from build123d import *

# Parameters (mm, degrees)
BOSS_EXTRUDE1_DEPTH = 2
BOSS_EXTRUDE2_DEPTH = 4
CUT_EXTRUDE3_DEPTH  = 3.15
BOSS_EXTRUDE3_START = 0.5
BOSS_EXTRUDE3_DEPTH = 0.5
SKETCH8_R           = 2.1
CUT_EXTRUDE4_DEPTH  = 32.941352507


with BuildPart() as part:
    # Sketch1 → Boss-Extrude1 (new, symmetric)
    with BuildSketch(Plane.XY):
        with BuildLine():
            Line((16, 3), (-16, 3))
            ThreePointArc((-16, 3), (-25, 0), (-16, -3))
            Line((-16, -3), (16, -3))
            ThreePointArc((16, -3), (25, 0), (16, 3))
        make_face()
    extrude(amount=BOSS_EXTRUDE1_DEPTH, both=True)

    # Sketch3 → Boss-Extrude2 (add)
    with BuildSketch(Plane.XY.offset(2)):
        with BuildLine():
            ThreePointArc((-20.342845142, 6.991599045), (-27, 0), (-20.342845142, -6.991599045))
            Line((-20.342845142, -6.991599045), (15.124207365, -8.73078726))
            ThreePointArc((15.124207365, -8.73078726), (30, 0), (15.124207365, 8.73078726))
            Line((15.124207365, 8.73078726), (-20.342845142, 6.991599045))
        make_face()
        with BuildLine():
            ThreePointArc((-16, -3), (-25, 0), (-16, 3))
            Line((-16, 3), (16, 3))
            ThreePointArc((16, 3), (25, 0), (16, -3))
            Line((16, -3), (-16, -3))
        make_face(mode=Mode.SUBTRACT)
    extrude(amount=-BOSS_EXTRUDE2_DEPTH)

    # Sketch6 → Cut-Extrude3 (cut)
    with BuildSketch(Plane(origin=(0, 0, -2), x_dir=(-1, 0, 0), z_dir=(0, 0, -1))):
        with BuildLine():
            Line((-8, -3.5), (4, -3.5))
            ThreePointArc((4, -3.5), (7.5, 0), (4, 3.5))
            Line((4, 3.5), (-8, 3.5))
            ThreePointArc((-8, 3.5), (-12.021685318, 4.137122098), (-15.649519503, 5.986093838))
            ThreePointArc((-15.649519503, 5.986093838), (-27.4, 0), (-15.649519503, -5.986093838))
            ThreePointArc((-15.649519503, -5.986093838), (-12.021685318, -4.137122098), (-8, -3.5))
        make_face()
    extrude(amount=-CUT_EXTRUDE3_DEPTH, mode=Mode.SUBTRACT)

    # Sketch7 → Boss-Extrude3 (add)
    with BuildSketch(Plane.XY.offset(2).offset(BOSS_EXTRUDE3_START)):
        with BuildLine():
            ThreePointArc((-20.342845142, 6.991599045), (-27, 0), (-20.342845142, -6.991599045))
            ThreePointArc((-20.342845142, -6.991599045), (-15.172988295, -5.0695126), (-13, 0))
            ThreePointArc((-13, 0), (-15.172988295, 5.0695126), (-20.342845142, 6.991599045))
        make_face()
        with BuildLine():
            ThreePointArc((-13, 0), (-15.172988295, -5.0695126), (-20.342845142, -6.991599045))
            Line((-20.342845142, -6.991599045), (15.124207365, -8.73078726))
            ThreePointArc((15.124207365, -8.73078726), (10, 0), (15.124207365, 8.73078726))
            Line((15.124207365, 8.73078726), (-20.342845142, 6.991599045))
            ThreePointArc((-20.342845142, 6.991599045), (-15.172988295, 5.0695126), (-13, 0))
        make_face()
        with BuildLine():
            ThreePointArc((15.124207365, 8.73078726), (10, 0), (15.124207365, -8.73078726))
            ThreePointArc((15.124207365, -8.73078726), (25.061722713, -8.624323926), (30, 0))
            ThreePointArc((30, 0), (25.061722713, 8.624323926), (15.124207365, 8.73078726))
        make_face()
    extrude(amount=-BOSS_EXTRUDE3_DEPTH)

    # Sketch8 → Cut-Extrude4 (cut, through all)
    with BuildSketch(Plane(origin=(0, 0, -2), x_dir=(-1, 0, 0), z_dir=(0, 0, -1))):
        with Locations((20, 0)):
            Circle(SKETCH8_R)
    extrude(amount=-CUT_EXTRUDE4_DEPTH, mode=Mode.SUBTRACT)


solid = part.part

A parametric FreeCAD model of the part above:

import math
import FreeCAD as App
import Part
import Sketcher

V = App.Vector
Q = App.Units.Quantity

doc = App.newDocument("Part")
params = doc.addObject("Spreadsheet::Sheet", "Params")
for row, (alias, value) in enumerate([
    ("sketch1_radius", "5 mm"),
    ("sketch1_width", "32 mm"),
    ("pad1_length", "4 mm"),
    ("sketch2_radius", "7 mm"),
    ("sketch2_radius2", "10 mm"),
    ("sketch2_radius3", "5 mm"),
    ("sketch2_width", "32 mm"),
    ("pad2_length", "4 mm"),
    ("sketch3_radius", "3.5 mm"),
    ("sketch3_radius2", "7.4 mm"),
    ("sketch3_width", "12 mm"),
    ("pocket1_length", "3.15 mm"),
    ("sketch4_radius", "7 mm"),
    ("sketch4_radius2", "10 mm"),
    ("pad3_length", "0.5 mm"),
    ("sketch5_diameter", "4.2 mm"),
], start=1):
    params.set(f"A{row}", alias)
    params.set(f"B{row}", "=" + value)
    params.setAlias(f"B{row}", alias)

body = doc.addObject("PartDesign::Body", "Body")

sketch1 = doc.addObject("Sketcher::SketchObject", "Sketch")
body.addObject(sketch1)
sketch1.AttachmentSupport = (doc.XY_Plane, [""])
sketch1.MapMode = "FlatFace"
sketch1.addGeometry(Part.LineSegment(V(16, 3, 0), V(-16, 3, 0)), False)
sketch1.addGeometry(Part.ArcOfCircle(Part.Circle(V(-20, 0, 0), V(0, 0, 1), 5), math.radians(37), math.radians(323)), False)
sketch1.addGeometry(Part.LineSegment(V(-16, -3, 0), V(16, -3, 0)), False)
sketch1.addGeometry(Part.ArcOfCircle(Part.Circle(V(20, 0, 0), V(0, 0, 1), 5), math.radians(-143), math.radians(143)), False)
sketch1.addConstraint(Sketcher.Constraint("Coincident", 0, 2, 1, 1))
sketch1.addConstraint(Sketcher.Constraint("Coincident", 1, 2, 2, 1))
sketch1.addConstraint(Sketcher.Constraint("Coincident", 2, 2, 3, 1))
sketch1.addConstraint(Sketcher.Constraint("Coincident", 3, 2, 0, 1))
sketch1.addConstraint(Sketcher.Constraint("Horizontal", 0))
sketch1.addConstraint(Sketcher.Constraint("Horizontal", 2))
sketch1.addConstraint(Sketcher.Constraint("Equal", 1, 3))
sketch1.addConstraint(Sketcher.Constraint("Symmetric", 1, 3, 3, 3, -1, 1))
sketch1.addConstraint(Sketcher.Constraint("Symmetric", 0, 2, 1, 2, -1))
sketch1.addConstraint(Sketcher.Constraint("Radius", 1, Q("5 mm")))
sketch1.addConstraint(Sketcher.Constraint("DistanceX", 0, 2, 0, 1, Q("32 mm")))
sketch1.addConstraint(Sketcher.Constraint("DistanceX", 1, 3, -1, 1, Q("20 mm")))
sketch1.setExpression("Constraints[9]", "Params.sketch1_radius")
sketch1.setExpression("Constraints[10]", "Params.sketch1_width")
pad1 = doc.addObject("PartDesign::Pad", "Pad")
body.addObject(pad1)
pad1.Profile = sketch1
pad1.setExpression("Length", "Params.pad1_length")
pad1.Midplane = True

sketch2 = doc.addObject("Sketcher::SketchObject", "Sketch001")
body.addObject(sketch2)
sketch2.AttachmentSupport = (doc.XY_Plane, [""])
sketch2.MapMode = "FlatFace"
sketch2.AttachmentOffset = App.Placement(V(0, 0, 2), App.Rotation())
sketch2.addGeometry(Part.ArcOfCircle(Part.Circle(V(-20, 0, 0), V(0, 0, 1), 7), math.radians(93), math.radians(267)), False)
sketch2.addGeometry(Part.LineSegment(V(-20, -7, 0), V(15, -9, 0)), False)
sketch2.addGeometry(Part.ArcOfCircle(Part.Circle(V(20, 0, 0), V(0, 0, 1), 10), math.radians(-119), math.radians(119)), False)
sketch2.addGeometry(Part.LineSegment(V(15, 9, 0), V(-20, 7, 0)), False)
sketch2.addGeometry(Part.LineSegment(V(16, -3, 0), V(-16, -3, 0)), False)
sketch2.addGeometry(Part.ArcOfCircle(Part.Circle(V(-20, 0, 0), V(0, 0, 1), 5), math.radians(37), math.radians(323)), False)
sketch2.addGeometry(Part.LineSegment(V(-16, 3, 0), V(16, 3, 0)), False)
sketch2.addGeometry(Part.ArcOfCircle(Part.Circle(V(20, 0, 0), V(0, 0, 1), 5), math.radians(-143), math.radians(143)), False)
sketch2.addConstraint(Sketcher.Constraint("Tangent", 0, 2, 1, 1))
sketch2.addConstraint(Sketcher.Constraint("Coincident", 1, 2, 2, 1))
sketch2.addConstraint(Sketcher.Constraint("Coincident", 2, 2, 3, 1))
sketch2.addConstraint(Sketcher.Constraint("Tangent", 3, 2, 0, 1))
sketch2.addConstraint(Sketcher.Constraint("Coincident", 4, 2, 5, 2))
sketch2.addConstraint(Sketcher.Constraint("Coincident", 5, 1, 6, 1))
sketch2.addConstraint(Sketcher.Constraint("Coincident", 6, 2, 7, 2))
sketch2.addConstraint(Sketcher.Constraint("Coincident", 7, 1, 4, 1))
sketch2.addConstraint(Sketcher.Constraint("Horizontal", 4))
sketch2.addConstraint(Sketcher.Constraint("Horizontal", 6))
sketch2.addConstraint(Sketcher.Constraint("Coincident", 5, 3, 0, 3))
sketch2.addConstraint(Sketcher.Constraint("Coincident", 7, 3, 2, 3))
sketch2.addConstraint(Sketcher.Constraint("Equal", 5, 7))
sketch2.addConstraint(Sketcher.Constraint("Symmetric", 0, 3, 2, 3, -1, 1))
sketch2.addConstraint(Sketcher.Constraint("Symmetric", 1, 2, 2, 2, -1))
sketch2.addConstraint(Sketcher.Constraint("Vertical", 4, 2, 5, 1))
sketch2.addConstraint(Sketcher.Constraint("Radius", 0, Q("7 mm")))
sketch2.addConstraint(Sketcher.Constraint("Radius", 2, Q("10 mm")))
sketch2.addConstraint(Sketcher.Constraint("Radius", 5, Q("5 mm")))
sketch2.addConstraint(Sketcher.Constraint("DistanceX", 4, 2, 4, 1, Q("32 mm")))
sketch2.addConstraint(Sketcher.Constraint("DistanceX", 0, 3, -1, 1, Q("20 mm")))
sketch2.addConstraint(Sketcher.Constraint("DistanceY", 0, 2, -1, 1, Q("6.991599 mm")))
sketch2.setExpression("Constraints[16]", "Params.sketch2_radius")
sketch2.setExpression("Constraints[17]", "Params.sketch2_radius2")
sketch2.setExpression("Constraints[18]", "Params.sketch2_radius3")
sketch2.setExpression("Constraints[19]", "Params.sketch2_width")
pad2 = doc.addObject("PartDesign::Pad", "Pad001")
body.addObject(pad2)
pad2.Profile = sketch2
pad2.setExpression("Length", "Params.pad2_length")
pad2.Reversed = True

sketch3 = doc.addObject("Sketcher::SketchObject", "Sketch002")
body.addObject(sketch3)
sketch3.AttachmentSupport = (doc.XY_Plane, [""])
sketch3.MapMode = "FlatFace"
sketch3.AttachmentOffset = App.Placement(V(0, 0, -2), App.Rotation())
sketch3.addGeometry(Part.LineSegment(V(8, -3.5, 0), V(-4, -3.5, 0)), False)
sketch3.addGeometry(Part.ArcOfCircle(Part.Circle(V(-4, 0, 0), V(0, 0, 1), 3.5), math.radians(90), math.radians(270)), False)
sketch3.addGeometry(Part.LineSegment(V(-4, 3.5, 0), V(8, 3.5, 0)), False)
sketch3.addGeometry(Part.ArcOfCircle(Part.Circle(V(8, 16.5, 0), V(0, 0, 1), 13), math.radians(-90), math.radians(-54)), False)
sketch3.addGeometry(Part.ArcOfCircle(Part.Circle(V(20, 0, 0), V(0, 0, 1), 7.4), math.radians(-126), math.radians(126)), False)
sketch3.addGeometry(Part.ArcOfCircle(Part.Circle(V(8, -16.5, 0), V(0, 0, 1), 13), math.radians(54), math.radians(90)), False)
sketch3.addConstraint(Sketcher.Constraint("Tangent", 0, 2, 1, 2))
sketch3.addConstraint(Sketcher.Constraint("Tangent", 1, 1, 2, 1))
sketch3.addConstraint(Sketcher.Constraint("Tangent", 2, 2, 3, 1))
sketch3.addConstraint(Sketcher.Constraint("Tangent", 3, 2, 4, 2))
sketch3.addConstraint(Sketcher.Constraint("Tangent", 4, 1, 5, 1))
sketch3.addConstraint(Sketcher.Constraint("Tangent", 5, 2, 0, 1))
sketch3.addConstraint(Sketcher.Constraint("Horizontal", 0))
sketch3.addConstraint(Sketcher.Constraint("Horizontal", 2))
sketch3.addConstraint(Sketcher.Constraint("Equal", 3, 5))
sketch3.addConstraint(Sketcher.Constraint("Symmetric", 3, 3, 5, 3, -1))
sketch3.addConstraint(Sketcher.Constraint("Radius", 1, Q("3.5 mm")))
sketch3.addConstraint(Sketcher.Constraint("Radius", 4, Q("7.4 mm")))
sketch3.addConstraint(Sketcher.Constraint("DistanceX", 0, 2, 0, 1, Q("12 mm")))
sketch3.addConstraint(Sketcher.Constraint("DistanceX", 1, 3, -1, 1, Q("4 mm")))
sketch3.addConstraint(Sketcher.Constraint("DistanceX", -1, 1, 4, 3, Q("20 mm")))
sketch3.setExpression("Constraints[10]", "Params.sketch3_radius")
sketch3.setExpression("Constraints[11]", "Params.sketch3_radius2")
sketch3.setExpression("Constraints[12]", "Params.sketch3_width")
pocket1 = doc.addObject("PartDesign::Pocket", "Pocket")
body.addObject(pocket1)
pocket1.Profile = sketch3
pocket1.setExpression("Length", "Params.pocket1_length")
pocket1.Reversed = True

sketch4 = doc.addObject("Sketcher::SketchObject", "Sketch003")
body.addObject(sketch4)
sketch4.AttachmentSupport = (doc.XY_Plane, [""])
sketch4.MapMode = "FlatFace"
sketch4.AttachmentOffset = App.Placement(V(0, 0, 2.5), App.Rotation())
sketch4.addGeometry(Part.ArcOfCircle(Part.Circle(V(-20, 0, 0), V(0, 0, 1), 7), math.radians(93), math.radians(267)), False)
sketch4.addGeometry(Part.LineSegment(V(-20, -7, 0), V(15, -9, 0)), False)
sketch4.addGeometry(Part.ArcOfCircle(Part.Circle(V(20, 0, 0), V(0, 0, 1), 10), math.radians(-119), math.radians(0)), False)
sketch4.addGeometry(Part.ArcOfCircle(Part.Circle(V(20, 0, 0), V(0, 0, 1), 10), math.radians(0), math.radians(119)), False)
sketch4.addGeometry(Part.LineSegment(V(15, 9, 0), V(-20, 7, 0)), False)
sketch4.addConstraint(Sketcher.Constraint("Tangent", 0, 2, 1, 1))
sketch4.addConstraint(Sketcher.Constraint("Coincident", 1, 2, 2, 1))
sketch4.addConstraint(Sketcher.Constraint("Tangent", 2, 2, 3, 1))
sketch4.addConstraint(Sketcher.Constraint("Coincident", 3, 2, 4, 1))
sketch4.addConstraint(Sketcher.Constraint("Tangent", 4, 2, 0, 1))
sketch4.addConstraint(Sketcher.Constraint("Equal", 2, 3))
sketch4.addConstraint(Sketcher.Constraint("Symmetric", 0, 3, 2, 3, -1, 1))
sketch4.addConstraint(Sketcher.Constraint("Symmetric", 1, 2, 3, 2, -1))
sketch4.addConstraint(Sketcher.Constraint("PointOnObject", 2, 2, -1))
sketch4.addConstraint(Sketcher.Constraint("Radius", 0, Q("7 mm")))
sketch4.addConstraint(Sketcher.Constraint("Radius", 2, Q("10 mm")))
sketch4.addConstraint(Sketcher.Constraint("DistanceX", 0, 3, -1, 1, Q("20 mm")))
sketch4.addConstraint(Sketcher.Constraint("DistanceY", 0, 2, -1, 1, Q("6.991599 mm")))
sketch4.setExpression("Constraints[9]", "Params.sketch4_radius")
sketch4.setExpression("Constraints[10]", "Params.sketch4_radius2")
pad3 = doc.addObject("PartDesign::Pad", "Pad002")
body.addObject(pad3)
pad3.Profile = sketch4
pad3.setExpression("Length", "Params.pad3_length")
pad3.Reversed = True

sketch5 = doc.addObject("Sketcher::SketchObject", "Sketch004")
body.addObject(sketch5)
sketch5.AttachmentSupport = (doc.XY_Plane, [""])
sketch5.MapMode = "FlatFace"
sketch5.AttachmentOffset = App.Placement(V(0, 0, -2), App.Rotation())
sketch5.addGeometry(Part.Circle(V(-20, 0, 0), V(0, 0, 1), 2.1), False)
sketch5.addConstraint(Sketcher.Constraint("PointOnObject", 0, 3, -1))
sketch5.addConstraint(Sketcher.Constraint("Diameter", 0, Q("4.2 mm")))
sketch5.addConstraint(Sketcher.Constraint("DistanceX", 0, 3, -1, 1, Q("20 mm")))
sketch5.setExpression("Constraints[1]", "Params.sketch5_diameter")
pocket2 = doc.addObject("PartDesign::Pocket", "Pocket001")
body.addObject(pocket2)
pocket2.Profile = sketch5
pocket2.Type = "ThroughAll"
pocket2.Reversed = True

doc.recompute()
